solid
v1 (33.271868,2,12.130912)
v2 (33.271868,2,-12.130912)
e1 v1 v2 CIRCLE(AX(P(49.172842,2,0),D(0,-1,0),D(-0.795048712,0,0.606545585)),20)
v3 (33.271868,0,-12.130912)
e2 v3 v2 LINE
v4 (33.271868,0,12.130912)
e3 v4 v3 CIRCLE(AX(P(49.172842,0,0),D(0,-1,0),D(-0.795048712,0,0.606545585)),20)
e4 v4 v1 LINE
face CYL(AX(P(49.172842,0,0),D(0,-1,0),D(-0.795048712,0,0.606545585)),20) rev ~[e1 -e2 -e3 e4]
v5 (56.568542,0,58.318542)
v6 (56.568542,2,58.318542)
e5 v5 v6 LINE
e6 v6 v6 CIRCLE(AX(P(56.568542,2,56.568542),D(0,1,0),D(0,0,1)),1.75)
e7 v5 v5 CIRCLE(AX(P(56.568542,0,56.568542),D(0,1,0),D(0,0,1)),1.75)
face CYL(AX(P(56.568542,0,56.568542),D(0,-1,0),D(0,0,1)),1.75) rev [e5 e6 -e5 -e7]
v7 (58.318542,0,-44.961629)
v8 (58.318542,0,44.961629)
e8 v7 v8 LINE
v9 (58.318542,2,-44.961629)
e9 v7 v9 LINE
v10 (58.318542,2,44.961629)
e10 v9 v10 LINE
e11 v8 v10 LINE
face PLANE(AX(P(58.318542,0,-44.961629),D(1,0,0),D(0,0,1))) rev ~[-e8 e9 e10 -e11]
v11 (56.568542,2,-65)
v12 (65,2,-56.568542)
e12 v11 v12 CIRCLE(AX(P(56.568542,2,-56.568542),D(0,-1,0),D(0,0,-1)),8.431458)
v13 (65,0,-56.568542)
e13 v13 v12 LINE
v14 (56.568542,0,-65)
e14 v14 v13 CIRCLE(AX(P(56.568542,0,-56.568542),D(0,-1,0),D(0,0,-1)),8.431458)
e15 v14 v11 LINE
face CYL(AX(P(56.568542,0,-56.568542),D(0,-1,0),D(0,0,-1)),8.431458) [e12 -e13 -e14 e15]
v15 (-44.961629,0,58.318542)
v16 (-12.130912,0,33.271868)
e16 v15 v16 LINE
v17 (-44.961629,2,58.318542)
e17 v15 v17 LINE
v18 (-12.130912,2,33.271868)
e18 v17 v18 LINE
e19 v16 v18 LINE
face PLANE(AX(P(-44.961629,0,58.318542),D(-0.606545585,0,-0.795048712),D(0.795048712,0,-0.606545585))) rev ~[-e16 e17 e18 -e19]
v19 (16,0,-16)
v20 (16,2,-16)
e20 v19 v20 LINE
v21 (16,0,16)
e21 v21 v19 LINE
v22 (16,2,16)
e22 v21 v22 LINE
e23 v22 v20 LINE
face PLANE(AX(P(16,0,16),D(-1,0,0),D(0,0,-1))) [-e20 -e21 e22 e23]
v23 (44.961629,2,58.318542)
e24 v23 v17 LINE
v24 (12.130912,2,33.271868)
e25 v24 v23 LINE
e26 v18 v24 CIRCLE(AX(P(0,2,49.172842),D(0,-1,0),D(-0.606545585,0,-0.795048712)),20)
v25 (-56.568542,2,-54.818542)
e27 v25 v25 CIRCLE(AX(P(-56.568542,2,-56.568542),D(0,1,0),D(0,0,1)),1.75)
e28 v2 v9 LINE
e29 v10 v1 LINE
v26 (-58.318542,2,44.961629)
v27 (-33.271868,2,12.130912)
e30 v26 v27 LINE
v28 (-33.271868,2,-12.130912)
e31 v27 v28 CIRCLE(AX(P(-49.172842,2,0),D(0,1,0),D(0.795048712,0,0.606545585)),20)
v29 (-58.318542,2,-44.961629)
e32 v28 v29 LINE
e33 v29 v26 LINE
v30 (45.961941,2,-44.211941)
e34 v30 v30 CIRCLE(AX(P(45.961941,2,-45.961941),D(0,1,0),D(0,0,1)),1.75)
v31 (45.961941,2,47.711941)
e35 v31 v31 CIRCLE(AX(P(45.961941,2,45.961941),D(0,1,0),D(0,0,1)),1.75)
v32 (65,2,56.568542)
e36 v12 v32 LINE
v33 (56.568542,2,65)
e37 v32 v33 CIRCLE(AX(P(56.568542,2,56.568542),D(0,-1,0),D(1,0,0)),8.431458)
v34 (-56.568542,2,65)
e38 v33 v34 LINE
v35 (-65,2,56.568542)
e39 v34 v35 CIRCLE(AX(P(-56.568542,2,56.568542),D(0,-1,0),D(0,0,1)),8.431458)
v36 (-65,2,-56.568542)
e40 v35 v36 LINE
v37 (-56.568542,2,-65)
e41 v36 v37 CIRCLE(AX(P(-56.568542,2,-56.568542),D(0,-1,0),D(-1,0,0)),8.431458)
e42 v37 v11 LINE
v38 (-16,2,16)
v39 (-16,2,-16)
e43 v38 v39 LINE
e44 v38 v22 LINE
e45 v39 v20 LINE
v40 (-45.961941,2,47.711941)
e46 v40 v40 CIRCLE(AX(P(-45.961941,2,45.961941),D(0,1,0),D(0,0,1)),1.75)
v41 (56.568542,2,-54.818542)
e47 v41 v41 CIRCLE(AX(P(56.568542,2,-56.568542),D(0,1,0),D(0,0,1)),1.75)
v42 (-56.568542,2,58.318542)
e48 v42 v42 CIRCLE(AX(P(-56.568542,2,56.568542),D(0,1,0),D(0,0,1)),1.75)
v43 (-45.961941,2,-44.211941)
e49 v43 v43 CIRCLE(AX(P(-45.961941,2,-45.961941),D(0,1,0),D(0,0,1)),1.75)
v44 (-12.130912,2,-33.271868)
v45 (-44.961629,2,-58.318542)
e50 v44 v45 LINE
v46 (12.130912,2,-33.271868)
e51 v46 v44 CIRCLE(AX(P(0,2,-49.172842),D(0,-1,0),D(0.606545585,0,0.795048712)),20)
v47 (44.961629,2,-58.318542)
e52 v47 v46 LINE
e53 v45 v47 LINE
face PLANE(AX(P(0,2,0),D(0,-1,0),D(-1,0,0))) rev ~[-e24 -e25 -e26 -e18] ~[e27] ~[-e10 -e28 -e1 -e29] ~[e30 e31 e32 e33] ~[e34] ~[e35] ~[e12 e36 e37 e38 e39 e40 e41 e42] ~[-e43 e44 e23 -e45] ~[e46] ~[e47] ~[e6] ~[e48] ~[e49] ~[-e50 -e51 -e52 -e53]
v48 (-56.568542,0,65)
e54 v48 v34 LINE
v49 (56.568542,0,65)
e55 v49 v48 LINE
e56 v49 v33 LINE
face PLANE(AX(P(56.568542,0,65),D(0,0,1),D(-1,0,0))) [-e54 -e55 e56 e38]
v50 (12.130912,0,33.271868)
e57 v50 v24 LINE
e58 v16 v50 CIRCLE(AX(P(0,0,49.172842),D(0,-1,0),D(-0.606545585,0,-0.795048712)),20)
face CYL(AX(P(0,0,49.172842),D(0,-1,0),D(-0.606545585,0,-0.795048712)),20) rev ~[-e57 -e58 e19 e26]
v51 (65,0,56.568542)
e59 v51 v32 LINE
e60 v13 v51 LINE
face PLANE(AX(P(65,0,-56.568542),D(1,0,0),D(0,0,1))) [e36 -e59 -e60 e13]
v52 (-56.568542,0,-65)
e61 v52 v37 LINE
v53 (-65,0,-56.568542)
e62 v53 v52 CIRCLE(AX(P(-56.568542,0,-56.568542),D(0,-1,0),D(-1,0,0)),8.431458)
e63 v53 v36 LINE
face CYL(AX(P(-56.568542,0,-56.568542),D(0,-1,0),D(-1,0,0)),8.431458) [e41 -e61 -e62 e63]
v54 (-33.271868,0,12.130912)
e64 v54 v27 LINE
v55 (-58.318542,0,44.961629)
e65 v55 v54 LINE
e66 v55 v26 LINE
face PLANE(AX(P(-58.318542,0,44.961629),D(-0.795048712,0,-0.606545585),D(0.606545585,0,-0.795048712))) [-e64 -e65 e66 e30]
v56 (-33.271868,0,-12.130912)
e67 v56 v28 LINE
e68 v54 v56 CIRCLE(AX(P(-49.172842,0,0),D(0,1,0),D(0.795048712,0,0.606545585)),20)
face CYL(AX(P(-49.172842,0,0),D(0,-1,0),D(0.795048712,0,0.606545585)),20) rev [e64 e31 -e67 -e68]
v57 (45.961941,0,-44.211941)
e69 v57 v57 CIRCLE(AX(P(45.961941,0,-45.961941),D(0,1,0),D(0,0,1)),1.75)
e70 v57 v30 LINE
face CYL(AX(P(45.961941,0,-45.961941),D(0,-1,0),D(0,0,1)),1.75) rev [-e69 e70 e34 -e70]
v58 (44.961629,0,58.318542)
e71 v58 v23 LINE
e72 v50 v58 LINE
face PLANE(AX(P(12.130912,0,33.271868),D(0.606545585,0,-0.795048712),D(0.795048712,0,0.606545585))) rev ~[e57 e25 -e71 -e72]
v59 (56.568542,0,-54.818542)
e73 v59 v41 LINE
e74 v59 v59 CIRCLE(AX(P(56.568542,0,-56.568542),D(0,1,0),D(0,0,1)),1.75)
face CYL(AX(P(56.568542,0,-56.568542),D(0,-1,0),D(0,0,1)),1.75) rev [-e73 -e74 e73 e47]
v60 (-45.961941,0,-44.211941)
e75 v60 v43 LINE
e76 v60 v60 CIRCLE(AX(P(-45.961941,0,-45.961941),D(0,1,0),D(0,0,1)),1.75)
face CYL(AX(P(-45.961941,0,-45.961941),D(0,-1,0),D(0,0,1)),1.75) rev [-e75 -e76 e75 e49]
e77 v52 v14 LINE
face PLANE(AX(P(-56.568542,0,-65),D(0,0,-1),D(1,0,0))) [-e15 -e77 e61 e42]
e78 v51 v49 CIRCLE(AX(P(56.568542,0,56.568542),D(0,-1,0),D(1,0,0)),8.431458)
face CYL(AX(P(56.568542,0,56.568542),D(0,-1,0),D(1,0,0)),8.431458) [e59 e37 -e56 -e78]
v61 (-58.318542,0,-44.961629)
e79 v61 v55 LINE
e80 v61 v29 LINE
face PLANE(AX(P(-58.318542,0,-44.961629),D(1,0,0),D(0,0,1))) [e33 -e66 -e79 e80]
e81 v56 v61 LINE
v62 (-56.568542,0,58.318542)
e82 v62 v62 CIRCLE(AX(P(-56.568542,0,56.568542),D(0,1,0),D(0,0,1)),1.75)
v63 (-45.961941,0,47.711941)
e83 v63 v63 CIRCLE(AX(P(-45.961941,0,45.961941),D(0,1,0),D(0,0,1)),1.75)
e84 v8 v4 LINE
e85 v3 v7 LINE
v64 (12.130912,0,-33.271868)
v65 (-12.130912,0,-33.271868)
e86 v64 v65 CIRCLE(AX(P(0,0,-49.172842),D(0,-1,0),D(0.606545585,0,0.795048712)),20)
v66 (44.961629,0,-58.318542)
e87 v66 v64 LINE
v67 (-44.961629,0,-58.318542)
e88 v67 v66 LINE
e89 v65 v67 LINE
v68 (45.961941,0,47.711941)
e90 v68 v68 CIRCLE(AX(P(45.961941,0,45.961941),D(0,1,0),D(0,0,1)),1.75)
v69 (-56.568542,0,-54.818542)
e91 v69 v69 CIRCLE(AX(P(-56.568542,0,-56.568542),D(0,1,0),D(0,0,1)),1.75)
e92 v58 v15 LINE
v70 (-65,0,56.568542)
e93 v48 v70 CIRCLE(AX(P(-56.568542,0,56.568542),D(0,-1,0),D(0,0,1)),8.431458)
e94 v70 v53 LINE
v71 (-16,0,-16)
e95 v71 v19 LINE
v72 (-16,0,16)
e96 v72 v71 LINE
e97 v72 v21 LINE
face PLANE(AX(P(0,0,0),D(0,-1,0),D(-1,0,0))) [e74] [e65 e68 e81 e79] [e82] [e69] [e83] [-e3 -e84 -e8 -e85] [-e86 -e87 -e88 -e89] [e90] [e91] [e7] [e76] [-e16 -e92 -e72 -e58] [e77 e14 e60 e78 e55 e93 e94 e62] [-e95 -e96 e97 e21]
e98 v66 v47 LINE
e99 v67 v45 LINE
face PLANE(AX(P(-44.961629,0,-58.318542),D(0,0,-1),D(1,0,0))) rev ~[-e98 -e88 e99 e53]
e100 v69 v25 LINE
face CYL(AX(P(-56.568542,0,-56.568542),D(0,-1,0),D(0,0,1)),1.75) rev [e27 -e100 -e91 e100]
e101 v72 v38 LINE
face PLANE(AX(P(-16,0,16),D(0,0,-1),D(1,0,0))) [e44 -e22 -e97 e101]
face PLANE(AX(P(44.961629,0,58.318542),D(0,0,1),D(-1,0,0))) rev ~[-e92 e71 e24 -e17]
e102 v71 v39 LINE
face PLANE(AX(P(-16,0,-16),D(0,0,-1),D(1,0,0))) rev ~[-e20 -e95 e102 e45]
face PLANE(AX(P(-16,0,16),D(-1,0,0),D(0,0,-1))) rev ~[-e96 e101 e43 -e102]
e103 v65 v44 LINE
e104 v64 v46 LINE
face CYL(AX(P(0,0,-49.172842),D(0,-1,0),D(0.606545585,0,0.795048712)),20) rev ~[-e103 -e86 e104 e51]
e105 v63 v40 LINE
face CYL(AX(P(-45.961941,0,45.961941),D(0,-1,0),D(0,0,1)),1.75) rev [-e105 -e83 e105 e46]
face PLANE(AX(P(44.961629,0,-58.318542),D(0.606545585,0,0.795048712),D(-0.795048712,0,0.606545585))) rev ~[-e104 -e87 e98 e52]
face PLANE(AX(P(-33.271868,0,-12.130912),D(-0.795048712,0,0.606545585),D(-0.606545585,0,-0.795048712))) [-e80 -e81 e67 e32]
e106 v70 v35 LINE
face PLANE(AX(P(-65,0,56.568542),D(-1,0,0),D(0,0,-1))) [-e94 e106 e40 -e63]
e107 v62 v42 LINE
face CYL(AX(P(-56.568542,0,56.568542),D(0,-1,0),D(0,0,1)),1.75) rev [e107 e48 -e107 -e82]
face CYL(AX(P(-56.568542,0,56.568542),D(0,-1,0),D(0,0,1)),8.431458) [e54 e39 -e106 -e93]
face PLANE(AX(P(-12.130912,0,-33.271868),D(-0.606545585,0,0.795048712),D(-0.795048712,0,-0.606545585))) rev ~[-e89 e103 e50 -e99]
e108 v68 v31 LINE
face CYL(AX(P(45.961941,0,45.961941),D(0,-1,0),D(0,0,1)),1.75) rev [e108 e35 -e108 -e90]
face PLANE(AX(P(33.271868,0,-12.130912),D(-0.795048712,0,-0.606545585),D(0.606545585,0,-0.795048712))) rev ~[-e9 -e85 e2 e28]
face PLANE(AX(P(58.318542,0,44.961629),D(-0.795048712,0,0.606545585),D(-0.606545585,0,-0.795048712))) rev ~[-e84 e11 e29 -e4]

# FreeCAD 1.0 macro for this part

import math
import FreeCAD as App
import Part
import Sketcher
from FreeCAD import Vector


def add_polygon(sketch, points):
    """Adds a closed chain of lines whose ends are joined by coincident constraints."""
    first, n = sketch.GeometryCount, len(points)
    for a, b in zip(points, points[1:] + points[:1]):
        sketch.addGeometry(Part.LineSegment(App.Vector(*a, 0), App.Vector(*b, 0)), False)
    for i in range(n):
        sketch.addConstraint(Sketcher.Constraint("Coincident", first + i, 2, first + (i + 1) % n, 1))

doc = App.newDocument("Part")
body = doc.addObject("PartDesign::Body", "Body")

sketch1 = doc.addObject("Sketcher::SketchObject", "Sketch")
body.addObject(sketch1)
sketch1.AttachmentSupport = (doc.XZ_Plane, [""])
sketch1.MapMode = "FlatFace"
sketch1.addGeometry(Part.LineSegment(Vector(56.6, -65, 0), Vector(-56.6, -65, 0)), False)
sketch1.addGeometry(Part.ArcOfCircle(Part.Circle(Vector(-56.6, -56.6, 0), Vector(0, 0, 1), 8.4), math.radians(180), math.radians(270)), False)
sketch1.addGeometry(Part.LineSegment(Vector(-65, -56.6, 0), Vector(-65, 56.6, 0)), False)
sketch1.addGeometry(Part.ArcOfCircle(Part.Circle(Vector(-56.6, 56.6, 0), Vector(0, 0, 1), 8.4), math.radians(90), math.radians(180)), False)
sketch1.addGeometry(Part.LineSegment(Vector(-56.6, 65, 0), Vector(56.6, 65, 0)), False)
sketch1.addGeometry(Part.ArcOfCircle(Part.Circle(Vector(56.6, 56.6, 0), Vector(0, 0, 1), 8.4), math.radians(0), math.radians(90)), False)
sketch1.addGeometry(Part.LineSegment(Vector(65, 56.6, 0), Vector(65, -56.6, 0)), False)
sketch1.addGeometry(Part.ArcOfCircle(Part.Circle(Vector(56.6, -56.6, 0), Vector(0, 0, 1), 8.4), math.radians(-90), math.radians(0)), False)
sketch1.addGeometry(Part.Circle(Vector(56.6, 56.6, 0), Vector(0, 0, 1), 1.8), False)
sketch1.addGeometry(Part.Circle(Vector(46, 46, 0), Vector(0, 0, 1), 1.8), False)
sketch1.addGeometry(Part.LineSegment(Vector(12.1, 33.3, 0), Vector(45, 58.3, 0)), False)
sketch1.addGeometry(Part.LineSegment(Vector(45, 58.3, 0), Vector(-45, 58.3, 0)), False)
sketch1.addGeometry(Part.LineSegment(Vector(-45, 58.3, 0), Vector(-12.1, 33.3, 0)), False)
sketch1.addGeometry(Part.ArcOfCircle(Part.Circle(Vector(0, 49.2, 0), Vector(0, 0, 1), 20), math.radians(-127), math.radians(-53)), False)
sketch1.addGeometry(Part.Circle(Vector(-56.6, 56.6, 0), Vector(0, 0, 1), 1.8), False)
sketch1.addGeometry(Part.Circle(Vector(-46, 46, 0), Vector(0, 0, 1), 1.8), False)
sketch1.addGeometry(Part.LineSegment(Vector(33.3, -12.1, 0), Vector(58.3, -45, 0)), False)
sketch1.addGeometry(Part.LineSegment(Vector(58.3, -45, 0), Vector(58.3, 45, 0)), False)
sketch1.addGeometry(Part.LineSegment(Vector(58.3, 45, 0), Vector(33.3, 12.1, 0)), False)
sketch1.addGeometry(Part.ArcOfCircle(Part.Circle(Vector(49.2, 0, 0), Vector(0, 0, 1), 20), math.radians(143), math.radians(217)), False)
sketch1.addGeometry(Part.Circle(Vector(46, -46, 0), Vector(0, 0, 1), 1.8), False)
sketch1.addGeometry(Part.Circle(Vector(56.6, -56.6, 0), Vector(0, 0, 1), 1.8), False)
add_polygon(sketch1, [(-16, 16), (-16, -16), (16, -16), (16, 16)])
sketch1.addGeometry(Part.ArcOfCircle(Part.Circle(Vector(-49.2, 0, 0), Vector(0, 0, 1), 20), math.radians(-37), math.radians(37)), False)
sketch1.addGeometry(Part.LineSegment(Vector(-33.3, 12.1, 0), Vector(-58.3, 45, 0)), False)
sketch1.addGeometry(Part.LineSegment(Vector(-58.3, 45, 0), Vector(-58.3, -45, 0)), False)
sketch1.addGeometry(Part.LineSegment(Vector(-58.3, -45, 0), Vector(-33.3, -12.1, 0)), False)
sketch1.addGeometry(Part.LineSegment(Vector(-12.1, -33.3, 0), Vector(-45, -58.3, 0)), False)
sketch1.addGeometry(Part.LineSegment(Vector(-45, -58.3, 0), Vector(45, -58.3, 0)), False)
sketch1.addGeometry(Part.LineSegment(Vector(45, -58.3, 0), Vector(12.1, -33.3, 0)), False)
sketch1.addGeometry(Part.ArcOfCircle(Part.Circle(Vector(0, -49.2, 0), Vector(0, 0, 1), 20), math.radians(53), math.radians(127)), False)
sketch1.addGeometry(Part.Circle(Vector(-46, -46, 0), Vector(0, 0, 1), 1.8), False)
sketch1.addGeometry(Part.Circle(Vector(-56.6, -56.6, 0), Vector(0, 0, 1), 1.8), False)
sketch1.addConstraint([
    Sketcher.Constraint("Tangent", 0, 2, 1, 2),
    Sketcher.Constraint("Tangent", 1, 1, 2, 1),
    Sketcher.Constraint("Tangent", 2, 2, 3, 2),
    Sketcher.Constraint("Tangent", 3, 1, 4, 1),
    Sketcher.Constraint("Tangent", 4, 2, 5, 2),
    Sketcher.Constraint("Tangent", 5, 1, 6, 1),
    Sketcher.Constraint("Tangent", 6, 2, 7, 2),
    Sketcher.Constraint("Tangent", 7, 1, 0, 1),
    Sketcher.Constraint("Coincident", 10, 2, 11, 1),
    Sketcher.Constraint("Coincident", 11, 2, 12, 1),
    Sketcher.Constraint("Tangent", 12, 2, 13, 1),
    Sketcher.Constraint("Tangent", 13, 2, 10, 1),
    Sketcher.Constraint("Coincident", 16, 2, 17, 1),
    Sketcher.Constraint("Coincident", 17, 2, 18, 1),
    Sketcher.Constraint("Tangent", 18, 2, 19, 1),
    Sketcher.Constraint("Tangent", 19, 2, 16, 1),
    Sketcher.Constraint("Tangent", 26, 2, 27, 1),
    Sketcher.Constraint("Coincident", 27, 2, 28, 1),
    Sketcher.Constraint("Coincident", 28, 2, 29, 1),
    Sketcher.Constraint("Tangent", 29, 2, 26, 1),
    Sketcher.Constraint("Coincident", 30, 2, 31, 1),
    Sketcher.Constraint("Coincident", 31, 2, 32, 1),
    Sketcher.Constraint("Tangent", 32, 2, 33, 1),
    Sketcher.Constraint("Tangent", 33, 2, 30, 1),
    Sketcher.Constraint("Horizontal", 0),
    Sketcher.Constraint("Vertical", 2),
    Sketcher.Constraint("Horizontal", 4),
    Sketcher.Constraint("Vertical", 6),
    Sketcher.Constraint("Horizontal", 11),
    Sketcher.Constraint("Vertical", 17),
    Sketcher.Constraint("Vertical", 22),
    Sketcher.Constraint("Horizontal", 23),
    Sketcher.Constraint("Vertical", 24),
    Sketcher.Constraint("Horizontal", 25),
    Sketcher.Constraint("Vertical", 28),
    Sketcher.Constraint("Horizontal", 31),
    Sketcher.Constraint("Coincident", 8, 3, 5, 3),
    Sketcher.Constraint("Coincident", 14, 3, 3, 3),
    Sketcher.Constraint("Coincident", 21, 3, 7, 3),
    Sketcher.Constraint("Coincident", 35, 3, 1, 3),
    Sketcher.Constraint("Equal", 1, 3),
    Sketcher.Constraint("Equal", 3, 5),
    Sketcher.Constraint("Equal", 5, 7),
    Sketcher.Constraint("Equal", 8, 9),
    Sketcher.Constraint("Equal", 9, 14),
    Sketcher.Constraint("Equal", 14, 15),
    Sketcher.Constraint("Equal", 13, 19),
    Sketcher.Constraint("Equal", 15, 20),
    Sketcher.Constraint("Equal", 20, 21),
    Sketcher.Constraint("Equal", 19, 26),
    Sketcher.Constraint("Equal", 26, 33),
    Sketcher.Constraint("Equal", 21, 34),
    Sketcher.Constraint("Equal", 34, 35),
    Sketcher.Constraint("Symmetric", 1, 3, 5, 3, -1, 1),
    Sketcher.Constraint("Symmetric", 15, 3, 20, 3, -1, 1),
    Sketcher.Constraint("Symmetric", 19, 3, 26, 3, -1, 1),
    Sketcher.Constraint("Symmetric", 13, 3, 33, 3, -1, 1),
    Sketcher.Constraint("Symmetric", 9, 3, 34, 3, -1, 1),
    Sketcher.Constraint("Symmetric", 22, 2, 24, 2, -1, 1),
    Sketcher.Constraint("Symmetric", 16, 2, 27, 2, -1, 1),
    Sketcher.Constraint("Symmetric", 10, 2, 30, 2, -1, 1),
    Sketcher.Constraint("Symmetric", 9, 3, 15, 3, -2),
    Sketcher.Constraint("Symmetric", 12, 2, 13, 2, -2),
    Sketcher.Constraint("Symmetric", 18, 2, 26, 2, -2),
    Sketcher.Constraint("Perpendicular", 10, 16),
    Sketcher.Constraint("Parallel", 18, 29),
    Sketcher.Constraint("Perpendicular", 29, 32),
    Sketcher.Constraint("Equal", 4, 2),
    Sketcher.Constraint("Equal", 31, 17),
    Sketcher.Constraint("Equal", 25, 22),
    Sketcher.Constraint("Radius", 13, 20.0),
    Sketcher.Constraint("Diameter", 8, 3.5),
    Sketcher.Constraint("DistanceX", 23, 1, 23, 2, 32.0),
    Sketcher.Constraint("DistanceY", 0, 2, -1, 1, 65.0),
    Sketcher.Constraint("DistanceY", 5, 3, 10, 2, 1.75),
    Sketcher.Constraint("DistanceX", 7, 3, 16, 2, 1.75),
    Sketcher.Constraint("Radius", 1, 8.431458),
    Sketcher.Constraint("DistanceX", 9, 3, 5, 3, 10.606602),
    Sketcher.Constraint("DistanceY", 9, 3, 5, 3, 10.606602),
    Sketcher.Constraint("DistanceY", 9, 3, 13, 3, 3.210901),
    Sketcher.Constraint("Distance", 10, 41.293969),
])
pad1 = doc.addObject("PartDesign::Pad", "Pad")
body.addObject(pad1)
pad1.Profile = sketch1
pad1.Length = 2
pad1.Reversed = True

doc.recompute()
